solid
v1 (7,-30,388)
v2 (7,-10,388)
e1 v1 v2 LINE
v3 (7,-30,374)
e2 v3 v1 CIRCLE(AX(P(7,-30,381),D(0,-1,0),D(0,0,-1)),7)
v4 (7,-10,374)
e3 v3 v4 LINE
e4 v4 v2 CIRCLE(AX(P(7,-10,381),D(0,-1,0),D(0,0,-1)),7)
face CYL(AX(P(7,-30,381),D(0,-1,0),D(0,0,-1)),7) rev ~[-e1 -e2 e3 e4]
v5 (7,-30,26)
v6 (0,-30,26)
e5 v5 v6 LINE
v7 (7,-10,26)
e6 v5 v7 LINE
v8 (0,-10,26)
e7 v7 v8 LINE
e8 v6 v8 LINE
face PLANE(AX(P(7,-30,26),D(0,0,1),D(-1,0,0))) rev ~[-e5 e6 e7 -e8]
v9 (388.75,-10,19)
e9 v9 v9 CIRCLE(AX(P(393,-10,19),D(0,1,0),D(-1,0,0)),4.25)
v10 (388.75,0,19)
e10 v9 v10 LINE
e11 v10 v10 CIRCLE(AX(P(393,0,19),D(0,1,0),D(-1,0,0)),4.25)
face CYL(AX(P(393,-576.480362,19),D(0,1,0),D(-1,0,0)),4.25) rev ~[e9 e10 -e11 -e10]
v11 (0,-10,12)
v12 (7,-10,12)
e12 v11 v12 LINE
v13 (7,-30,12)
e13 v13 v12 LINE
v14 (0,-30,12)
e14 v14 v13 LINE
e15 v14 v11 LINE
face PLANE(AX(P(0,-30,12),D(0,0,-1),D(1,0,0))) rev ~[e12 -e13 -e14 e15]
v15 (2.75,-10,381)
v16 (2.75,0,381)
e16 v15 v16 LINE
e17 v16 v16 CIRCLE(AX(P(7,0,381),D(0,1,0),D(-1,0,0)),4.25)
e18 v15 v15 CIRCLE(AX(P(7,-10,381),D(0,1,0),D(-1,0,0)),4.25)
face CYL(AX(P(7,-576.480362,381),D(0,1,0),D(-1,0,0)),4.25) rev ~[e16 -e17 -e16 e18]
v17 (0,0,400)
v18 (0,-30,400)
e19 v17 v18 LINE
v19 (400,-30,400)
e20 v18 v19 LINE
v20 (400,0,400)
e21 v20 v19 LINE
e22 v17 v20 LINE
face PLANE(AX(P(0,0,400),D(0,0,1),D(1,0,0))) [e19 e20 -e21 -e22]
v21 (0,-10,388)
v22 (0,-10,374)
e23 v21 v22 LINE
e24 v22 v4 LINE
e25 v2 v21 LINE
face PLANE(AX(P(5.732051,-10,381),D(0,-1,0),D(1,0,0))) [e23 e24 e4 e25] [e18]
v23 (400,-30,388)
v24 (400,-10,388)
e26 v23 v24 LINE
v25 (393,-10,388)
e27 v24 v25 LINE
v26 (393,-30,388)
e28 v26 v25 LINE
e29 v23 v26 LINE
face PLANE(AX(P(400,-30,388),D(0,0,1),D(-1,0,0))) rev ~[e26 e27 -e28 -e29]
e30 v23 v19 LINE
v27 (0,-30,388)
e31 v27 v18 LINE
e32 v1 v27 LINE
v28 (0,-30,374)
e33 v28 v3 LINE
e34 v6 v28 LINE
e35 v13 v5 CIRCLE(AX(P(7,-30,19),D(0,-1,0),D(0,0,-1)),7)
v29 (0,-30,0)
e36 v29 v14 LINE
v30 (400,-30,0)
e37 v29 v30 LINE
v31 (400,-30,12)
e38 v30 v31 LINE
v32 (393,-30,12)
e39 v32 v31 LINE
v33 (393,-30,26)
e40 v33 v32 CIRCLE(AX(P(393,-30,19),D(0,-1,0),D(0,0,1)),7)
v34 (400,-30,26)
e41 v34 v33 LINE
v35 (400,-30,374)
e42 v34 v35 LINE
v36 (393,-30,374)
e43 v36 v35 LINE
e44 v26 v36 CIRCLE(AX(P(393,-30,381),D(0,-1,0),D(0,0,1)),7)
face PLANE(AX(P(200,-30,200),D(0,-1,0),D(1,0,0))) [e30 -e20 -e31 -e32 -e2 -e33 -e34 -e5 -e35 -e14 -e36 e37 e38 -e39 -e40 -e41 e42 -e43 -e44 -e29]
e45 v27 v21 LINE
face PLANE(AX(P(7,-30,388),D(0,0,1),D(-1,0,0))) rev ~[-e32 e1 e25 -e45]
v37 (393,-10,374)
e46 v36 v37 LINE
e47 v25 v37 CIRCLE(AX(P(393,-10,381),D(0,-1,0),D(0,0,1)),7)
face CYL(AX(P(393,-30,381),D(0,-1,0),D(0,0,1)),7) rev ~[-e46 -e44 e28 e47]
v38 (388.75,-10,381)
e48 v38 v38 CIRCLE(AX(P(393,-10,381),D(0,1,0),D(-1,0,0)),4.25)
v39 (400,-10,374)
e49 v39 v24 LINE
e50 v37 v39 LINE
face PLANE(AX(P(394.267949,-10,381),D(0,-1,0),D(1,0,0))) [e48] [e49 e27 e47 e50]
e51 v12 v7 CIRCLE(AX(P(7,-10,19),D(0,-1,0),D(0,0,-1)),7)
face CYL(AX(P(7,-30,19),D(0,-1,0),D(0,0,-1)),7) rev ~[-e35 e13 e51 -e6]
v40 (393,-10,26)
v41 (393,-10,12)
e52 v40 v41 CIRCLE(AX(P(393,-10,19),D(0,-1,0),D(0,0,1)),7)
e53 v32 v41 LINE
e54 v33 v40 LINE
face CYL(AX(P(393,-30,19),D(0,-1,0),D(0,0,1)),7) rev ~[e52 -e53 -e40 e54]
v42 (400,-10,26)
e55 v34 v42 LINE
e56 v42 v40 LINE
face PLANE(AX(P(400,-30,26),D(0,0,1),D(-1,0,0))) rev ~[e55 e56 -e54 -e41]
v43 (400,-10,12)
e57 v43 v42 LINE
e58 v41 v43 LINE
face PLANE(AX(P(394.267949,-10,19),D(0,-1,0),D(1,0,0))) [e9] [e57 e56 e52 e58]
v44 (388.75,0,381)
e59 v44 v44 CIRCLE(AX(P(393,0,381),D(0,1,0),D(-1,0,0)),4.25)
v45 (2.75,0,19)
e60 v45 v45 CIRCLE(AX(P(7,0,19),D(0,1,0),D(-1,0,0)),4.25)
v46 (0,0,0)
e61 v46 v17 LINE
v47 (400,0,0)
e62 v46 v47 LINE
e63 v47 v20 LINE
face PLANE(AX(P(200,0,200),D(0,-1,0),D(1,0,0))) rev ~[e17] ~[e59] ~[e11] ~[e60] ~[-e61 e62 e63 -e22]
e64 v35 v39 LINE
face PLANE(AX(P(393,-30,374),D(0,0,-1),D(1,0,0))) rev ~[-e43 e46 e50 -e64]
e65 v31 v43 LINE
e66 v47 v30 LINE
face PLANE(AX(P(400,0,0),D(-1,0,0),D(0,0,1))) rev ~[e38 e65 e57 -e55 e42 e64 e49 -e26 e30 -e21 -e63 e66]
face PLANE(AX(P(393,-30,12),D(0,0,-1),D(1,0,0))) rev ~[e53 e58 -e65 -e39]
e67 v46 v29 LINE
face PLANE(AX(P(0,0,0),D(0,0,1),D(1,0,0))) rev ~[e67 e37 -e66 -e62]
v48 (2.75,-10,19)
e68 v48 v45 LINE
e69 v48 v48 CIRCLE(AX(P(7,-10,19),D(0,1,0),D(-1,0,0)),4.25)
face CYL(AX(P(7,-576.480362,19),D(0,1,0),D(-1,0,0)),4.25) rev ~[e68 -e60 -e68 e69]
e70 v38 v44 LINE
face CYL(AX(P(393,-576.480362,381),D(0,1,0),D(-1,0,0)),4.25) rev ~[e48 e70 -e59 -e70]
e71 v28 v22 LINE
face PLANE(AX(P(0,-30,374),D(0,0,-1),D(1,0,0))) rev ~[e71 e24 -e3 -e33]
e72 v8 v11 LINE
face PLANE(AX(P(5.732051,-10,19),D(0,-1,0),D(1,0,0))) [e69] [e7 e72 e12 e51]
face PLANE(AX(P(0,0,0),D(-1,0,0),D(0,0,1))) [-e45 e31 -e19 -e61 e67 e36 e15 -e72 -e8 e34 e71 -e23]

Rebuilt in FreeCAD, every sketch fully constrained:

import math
import FreeCAD as App
import Part
import Sketcher

doc = App.newDocument("Part")
body = doc.addObject("PartDesign::Body", "Body")

# Sketch on XZ plane
sketch1 = body.newObject("Sketcher::SketchObject", "Sketch")
sketch1.AttachmentSupport = (doc.getObject("XZ_Plane"), [""])
sketch1.MapMode = "FlatFace"
sketch1.addGeometry([
    Part.LineSegment(App.Vector(0, 400, 0), App.Vector(0, 0, 0)),
    Part.LineSegment(App.Vector(0, 0, 0), App.Vector(400, 0, 0)),
    Part.LineSegment(App.Vector(400, 0, 0), App.Vector(400, 400, 0)),
    Part.LineSegment(App.Vector(400, 400, 0), App.Vector(0, 400, 0)),
], False)
sketch1.addConstraint([
    Sketcher.Constraint("Coincident", 0, 2, 1, 1),
    Sketcher.Constraint("Coincident", 1, 2, 2, 1),
    Sketcher.Constraint("Coincident", 2, 2, 3, 1),
    Sketcher.Constraint("Coincident", 3, 2, 0, 1),
    Sketcher.Constraint("Vertical", 0),
    Sketcher.Constraint("Horizontal", 1),
    Sketcher.Constraint("Vertical", 2),
    Sketcher.Constraint("Horizontal", 3),
    Sketcher.Constraint("Coincident", 0, 2, -1, 1),
    Sketcher.Constraint("Equal", 3, 0),
    Sketcher.Constraint("DistanceX", 1, 1, 1, 2, 400.0),
])
pad1 = body.newObject("PartDesign::Pad", "Pad")
pad1.Profile = sketch1
pad1.Length = 30

# Sketch on XZ plane
sketch2 = body.newObject("Sketcher::SketchObject", "Sketch001")
sketch2.AttachmentSupport = (doc.getObject("XZ_Plane"), [""])
sketch2.MapMode = "FlatFace"
sketch2.AttachmentOffset = App.Placement(App.Vector(0, 0, 30), App.Rotation())
sketch2.addGeometry([
    Part.LineSegment(App.Vector(7, 26, 0), App.Vector(0, 26, 0)),  # 0
    Part.LineSegment(App.Vector(0, 26, 0), App.Vector(0, 12, 0)),  # 1
    Part.LineSegment(App.Vector(0, 12, 0), App.Vector(7, 12, 0)),  # 2
    Part.ArcOfCircle(Part.Circle(App.Vector(7, 19, 0), App.Vector(0, 0, 1), 7), math.radians(-90), math.radians(90)),  # 3
    Part.LineSegment(App.Vector(393, 12, 0), App.Vector(400, 12, 0)),  # 4
    Part.LineSegment(App.Vector(400, 12, 0), App.Vector(400, 26, 0)),  # 5
    Part.LineSegment(App.Vector(400, 26, 0), App.Vector(393, 26, 0)),  # 6
    Part.ArcOfCircle(Part.Circle(App.Vector(393, 19, 0), App.Vector(0, 0, 1), 7), math.radians(90), math.radians(270)),  # 7
    Part.LineSegment(App.Vector(400, 374, 0), App.Vector(400, 388, 0)),  # 8
    Part.LineSegment(App.Vector(400, 388, 0), App.Vector(393, 388, 0)),  # 9
    Part.ArcOfCircle(Part.Circle(App.Vector(393, 381, 0), App.Vector(0, 0, 1), 7), math.radians(90), math.radians(270)),  # 10
    Part.LineSegment(App.Vector(393, 374, 0), App.Vector(400, 374, 0)),  # 11
    Part.LineSegment(App.Vector(0, 374, 0), App.Vector(7, 374, 0)),  # 12
    Part.ArcOfCircle(Part.Circle(App.Vector(7, 381, 0), App.Vector(0, 0, 1), 7), math.radians(-90), math.radians(90)),  # 13
    Part.LineSegment(App.Vector(7, 388, 0), App.Vector(0, 388, 0)),  # 14
    Part.LineSegment(App.Vector(0, 388, 0), App.Vector(0, 374, 0)),  # 15
], False)
sketch2.addConstraint([
    Sketcher.Constraint("Coincident", 0, 2, 1, 1),
    Sketcher.Constraint("Coincident", 1, 2, 2, 1),
    Sketcher.Constraint("Tangent", 2, 2, 3, 1),
    Sketcher.Constraint("Tangent", 3, 2, 0, 1),
    Sketcher.Constraint("Coincident", 4, 2, 5, 1),
    Sketcher.Constraint("Coincident", 5, 2, 6, 1),
    Sketcher.Constraint("Tangent", 6, 2, 7, 1),
    Sketcher.Constraint("Tangent", 7, 2, 4, 1),
    Sketcher.Constraint("Coincident", 8, 2, 9, 1),
    Sketcher.Constraint("Tangent", 9, 2, 10, 1),
    Sketcher.Constraint("Tangent", 10, 2, 11, 1),
    Sketcher.Constraint("Coincident", 11, 2, 8, 1),
    Sketcher.Constraint("Tangent", 12, 2, 13, 1),
    Sketcher.Constraint("Tangent", 13, 2, 14, 1),
    Sketcher.Constraint("Coincident", 14, 2, 15, 1),
    Sketcher.Constraint("Coincident", 15, 2, 12, 1),
    Sketcher.Constraint("Horizontal", 0),
    Sketcher.Constraint("Vertical", 1),
    Sketcher.Constraint("Horizontal", 2),
    Sketcher.Constraint("Horizontal", 4),
    Sketcher.Constraint("Vertical", 5),
    Sketcher.Constraint("Horizontal", 6),
    Sketcher.Constraint("Vertical", 8),
    Sketcher.Constraint("Horizontal", 9),
    Sketcher.Constraint("Horizontal", 11),
    Sketcher.Constraint("Horizontal", 12),
    Sketcher.Constraint("Horizontal", 14),
    Sketcher.Constraint("Vertical", 15),
    Sketcher.Constraint("Equal", 3, 7),
    Sketcher.Constraint("Equal", 7, 10),
    Sketcher.Constraint("Equal", 10, 13),
    Sketcher.Constraint("PointOnObject", 0, 2, -2),
    Sketcher.Constraint("PointOnObject", 14, 2, -2),
    Sketcher.Constraint("Horizontal", 3, 3, 7, 3),
    Sketcher.Constraint("Horizontal", 10, 3, 13, 3),
    Sketcher.Constraint("Vertical", 7, 3, 10, 3),
    Sketcher.Constraint("Vertical", 3, 3, 13, 3),
    Sketcher.Constraint("Vertical", 5, 2, 8, 2),
    Sketcher.Constraint("Equal", 2, 4),
    Sketcher.Constraint("Radius", 3, 7.0),
    Sketcher.Constraint("DistanceX", 0, 2, 0, 1, 7.0),
    Sketcher.Constraint("DistanceY", -1, 1, 3, 3, 19.0),
    Sketcher.Constraint("DistanceX", -1, 1, 7, 3, 393.0),
    Sketcher.Constraint("DistanceY", -1, 1, 10, 3, 381.0),
])
pocket1 = body.newObject("PartDesign::Pocket", "Pocket")
pocket1.Profile = sketch2
pocket1.Length = 20

# Sketch on XZ plane
sketch3 = body.newObject("Sketcher::SketchObject", "Sketch002")
sketch3.AttachmentSupport = (doc.getObject("XZ_Plane"), [""])
sketch3.MapMode = "FlatFace"
sketch3.AttachmentOffset = App.Placement(App.Vector(0, 0, 10), App.Rotation())
sketch3.addGeometry([
    Part.Circle(App.Vector(7, 381, 0), App.Vector(0, 0, 1), 4.2),
    Part.Circle(App.Vector(393, 381, 0), App.Vector(0, 0, 1), 4.2),
    Part.Circle(App.Vector(393, 19, 0), App.Vector(0, 0, 1), 4.2),
    Part.Circle(App.Vector(7, 19, 0), App.Vector(0, 0, 1), 4.2),
], False)
sketch3.addConstraint([
    Sketcher.Constraint("Equal", 0, 1),
    Sketcher.Constraint("Equal", 1, 2),
    Sketcher.Constraint("Equal", 2, 3),
    Sketcher.Constraint("Horizontal", 0, 3, 1, 3),
    Sketcher.Constraint("Horizontal", 2, 3, 3, 3),
    Sketcher.Constraint("Vertical", 1, 3, 2, 3),
    Sketcher.Constraint("Vertical", 0, 3, 3, 3),
    Sketcher.Constraint("Diameter", 0, 8.5),
    Sketcher.Constraint("DistanceX", -1, 1, 0, 3, 7.0),
    Sketcher.Constraint("DistanceY", -1, 1, 0, 3, 381.0),
    Sketcher.Constraint("DistanceX", -1, 1, 1, 3, 393.0),
    Sketcher.Constraint("DistanceY", -1, 1, 2, 3, 19.0),
])
doc.recompute()
hole = body.newObject("PartDesign::Hole", "Hole")
hole.Profile = sketch3
hole.ThreadType = "None"
hole.Diameter = 8.5
hole.DepthType = "ThroughAll"

doc.recompute()
